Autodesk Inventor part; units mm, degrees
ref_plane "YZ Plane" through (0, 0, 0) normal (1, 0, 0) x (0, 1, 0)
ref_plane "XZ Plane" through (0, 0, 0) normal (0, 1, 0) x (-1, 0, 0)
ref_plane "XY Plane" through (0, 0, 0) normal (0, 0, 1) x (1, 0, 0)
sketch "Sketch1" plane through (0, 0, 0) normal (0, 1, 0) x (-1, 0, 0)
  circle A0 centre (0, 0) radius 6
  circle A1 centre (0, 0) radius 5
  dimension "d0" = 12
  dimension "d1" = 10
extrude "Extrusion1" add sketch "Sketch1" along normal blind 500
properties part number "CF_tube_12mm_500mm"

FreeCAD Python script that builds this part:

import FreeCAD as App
import Part
import Sketcher
Q = App.Units.Quantity

doc = App.newDocument("Part")
body = doc.addObject("PartDesign::Body", "Body")

sketch1 = body.newObject("Sketcher::SketchObject", "Sketch")
sketch1.AttachmentSupport = (doc.getObject("XZ_Plane"), [""])
sketch1.MapMode = "FlatFace"
sketch1.addGeometry([
    Part.Circle(App.Vector(0, 0, 0), App.Vector(0, 0, 1), 6),
    Part.Circle(App.Vector(0, 0, 0), App.Vector(0, 0, 1), 5),
], False)
sketch1.addConstraint([
    Sketcher.Constraint("Coincident", 0, 3, -1, 1),
    Sketcher.Constraint("Coincident", 1, 3, -1, 1),
    Sketcher.Constraint("Diameter", 0, Q("12 mm")),
    Sketcher.Constraint("Diameter", 1, Q("10 mm")),
])
pad1 = body.newObject("PartDesign::Pad", "Pad")
pad1.Profile = sketch1
pad1.Length = 500
pad1.Reversed = True

doc.recompute()
